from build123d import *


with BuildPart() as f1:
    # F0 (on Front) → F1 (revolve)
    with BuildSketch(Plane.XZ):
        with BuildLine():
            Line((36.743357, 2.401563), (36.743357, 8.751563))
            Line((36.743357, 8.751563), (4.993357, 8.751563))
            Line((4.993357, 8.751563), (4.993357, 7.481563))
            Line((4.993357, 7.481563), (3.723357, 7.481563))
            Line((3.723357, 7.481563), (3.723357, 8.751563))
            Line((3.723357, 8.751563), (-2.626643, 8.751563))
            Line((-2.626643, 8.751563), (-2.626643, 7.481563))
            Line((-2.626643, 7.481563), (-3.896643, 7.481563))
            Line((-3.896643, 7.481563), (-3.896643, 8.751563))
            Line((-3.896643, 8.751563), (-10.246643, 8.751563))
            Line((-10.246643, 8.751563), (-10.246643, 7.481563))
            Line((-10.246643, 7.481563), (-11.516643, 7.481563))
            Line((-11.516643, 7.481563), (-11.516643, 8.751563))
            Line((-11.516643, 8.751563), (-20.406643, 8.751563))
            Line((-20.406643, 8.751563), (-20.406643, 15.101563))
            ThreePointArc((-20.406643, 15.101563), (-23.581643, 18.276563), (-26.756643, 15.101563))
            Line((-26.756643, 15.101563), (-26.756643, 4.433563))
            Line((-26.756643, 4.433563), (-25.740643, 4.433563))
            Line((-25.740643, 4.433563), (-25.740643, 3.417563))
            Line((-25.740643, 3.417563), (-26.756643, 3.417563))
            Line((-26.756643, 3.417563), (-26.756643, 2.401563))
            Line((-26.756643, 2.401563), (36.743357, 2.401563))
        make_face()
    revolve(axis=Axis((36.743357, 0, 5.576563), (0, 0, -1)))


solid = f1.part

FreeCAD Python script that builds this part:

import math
import FreeCAD as App
import Part
import Sketcher

V = App.Vector
Q = App.Units.Quantity

doc = App.newDocument("Part")
body = doc.addObject("PartDesign::Body", "Body")

# Sketch on XZ plane
sketch1 = doc.addObject("Sketcher::SketchObject", "Sketch")
body.addObject(sketch1)
sketch1.AttachmentSupport = (doc.XZ_Plane, [""])
sketch1.MapMode = "FlatFace"
sketch1.addGeometry(Part.LineSegment(V(36.7, 2.4, 0), V(36.7, 8.8, 0)), False)
sketch1.addGeometry(Part.LineSegment(V(36.7, 8.8, 0), V(5, 8.8, 0)), False)
sketch1.addGeometry(Part.LineSegment(V(5, 8.8, 0), V(5, 7.5, 0)), False)
sketch1.addGeometry(Part.LineSegment(V(5, 7.5, 0), V(3.7, 7.5, 0)), False)
sketch1.addGeometry(Part.LineSegment(V(3.7, 7.5, 0), V(3.7, 8.8, 0)), False)
sketch1.addGeometry(Part.LineSegment(V(3.7, 8.8, 0), V(-2.6, 8.8, 0)), False)
sketch1.addGeometry(Part.LineSegment(V(-2.6, 8.8, 0), V(-2.6, 7.5, 0)), False)
sketch1.addGeometry(Part.LineSegment(V(-2.6, 7.5, 0), V(-3.9, 7.5, 0)), False)
sketch1.addGeometry(Part.LineSegment(V(-3.9, 7.5, 0), V(-3.9, 8.8, 0)), False)
sketch1.addGeometry(Part.LineSegment(V(-3.9, 8.8, 0), V(-10.2, 8.8, 0)), False)
sketch1.addGeometry(Part.LineSegment(V(-10.2, 8.8, 0), V(-10.2, 7.5, 0)), False)
sketch1.addGeometry(Part.LineSegment(V(-10.2, 7.5, 0), V(-11.5, 7.5, 0)), False)
sketch1.addGeometry(Part.LineSegment(V(-11.5, 7.5, 0), V(-11.5, 8.8, 0)), False)
sketch1.addGeometry(Part.LineSegment(V(-11.5, 8.8, 0), V(-20.4, 8.8, 0)), False)
sketch1.addGeometry(Part.LineSegment(V(-20.4, 8.8, 0), V(-20.4, 15.1, 0)), False)
sketch1.addGeometry(Part.ArcOfCircle(Part.Circle(V(-23.6, 15.1, 0), V(0, 0, 1), 3.2), math.radians(0), math.radians(180)), False)
sketch1.addGeometry(Part.LineSegment(V(-26.8, 15.1, 0), V(-26.8, 4.4, 0)), False)
sketch1.addGeometry(Part.LineSegment(V(-26.8, 4.4, 0), V(-25.7, 4.4, 0)), False)
sketch1.addGeometry(Part.LineSegment(V(-25.7, 4.4, 0), V(-25.7, 3.4, 0)), False)
sketch1.addGeometry(Part.LineSegment(V(-25.7, 3.4, 0), V(-26.8, 3.4, 0)), False)
sketch1.addGeometry(Part.LineSegment(V(-26.8, 3.4, 0), V(-26.8, 2.4, 0)), False)
sketch1.addGeometry(Part.LineSegment(V(-26.8, 2.4, 0), V(36.7, 2.4, 0)), False)
sketch1.addGeometry(Part.LineSegment(V(36.7, 15.1, 0), V(36.7, 2.4, 0)), True)  # axis
sketch1.addConstraint(Sketcher.Constraint("Coincident", 0, 2, 1, 1))
sketch1.addConstraint(Sketcher.Constraint("Coincident", 1, 2, 2, 1))
sketch1.addConstraint(Sketcher.Constraint("Coincident", 2, 2, 3, 1))
sketch1.addConstraint(Sketcher.Constraint("Coincident", 3, 2, 4, 1))
sketch1.addConstraint(Sketcher.Constraint("Coincident", 4, 2, 5, 1))
sketch1.addConstraint(Sketcher.Constraint("Coincident", 5, 2, 6, 1))
sketch1.addConstraint(Sketcher.Constraint("Coincident", 6, 2, 7, 1))
sketch1.addConstraint(Sketcher.Constraint("Coincident", 7, 2, 8, 1))
sketch1.addConstraint(Sketcher.Constraint("Coincident", 8, 2, 9, 1))
sketch1.addConstraint(Sketcher.Constraint("Coincident", 9, 2, 10, 1))
sketch1.addConstraint(Sketcher.Constraint("Coincident", 10, 2, 11, 1))
sketch1.addConstraint(Sketcher.Constraint("Coincident", 11, 2, 12, 1))
sketch1.addConstraint(Sketcher.Constraint("Coincident", 12, 2, 13, 1))
sketch1.addConstraint(Sketcher.Constraint("Coincident", 13, 2, 14, 1))
sketch1.addConstraint(Sketcher.Constraint("Tangent", 14, 2, 15, 1))
sketch1.addConstraint(Sketcher.Constraint("Tangent", 15, 2, 16, 1))
sketch1.addConstraint(Sketcher.Constraint("Coincident", 16, 2, 17, 1))
sketch1.addConstraint(Sketcher.Constraint("Coincident", 17, 2, 18, 1))
sketch1.addConstraint(Sketcher.Constraint("Coincident", 18, 2, 19, 1))
sketch1.addConstraint(Sketcher.Constraint("Coincident", 19, 2, 20, 1))
sketch1.addConstraint(Sketcher.Constraint("Coincident", 20, 2, 21, 1))
sketch1.addConstraint(Sketcher.Constraint("Coincident", 21, 2, 0, 1))
sketch1.addConstraint(Sketcher.Constraint("Vertical", 0))
sketch1.addConstraint(Sketcher.Constraint("Horizontal", 1))
sketch1.addConstraint(Sketcher.Constraint("Vertical", 2))
sketch1.addConstraint(Sketcher.Constraint("Horizontal", 3))
sketch1.addConstraint(Sketcher.Constraint("Vertical", 4))
sketch1.addConstraint(Sketcher.Constraint("Horizontal", 5))
sketch1.addConstraint(Sketcher.Constraint("Vertical", 6))
sketch1.addConstraint(Sketcher.Constraint("Horizontal", 7))
sketch1.addConstraint(Sketcher.Constraint("Vertical", 8))
sketch1.addConstraint(Sketcher.Constraint("Horizontal", 9))
sketch1.addConstraint(Sketcher.Constraint("Vertical", 10))
sketch1.addConstraint(Sketcher.Constraint("Horizontal", 11))
sketch1.addConstraint(Sketcher.Constraint("Vertical", 12))
sketch1.addConstraint(Sketcher.Constraint("Horizontal", 13))
sketch1.addConstraint(Sketcher.Constraint("Vertical", 14))
sketch1.addConstraint(Sketcher.Constraint("Vertical", 16))
sketch1.addConstraint(Sketcher.Constraint("Horizontal", 17))
sketch1.addConstraint(Sketcher.Constraint("Vertical", 18))
sketch1.addConstraint(Sketcher.Constraint("Horizontal", 19))
sketch1.addConstraint(Sketcher.Constraint("Vertical", 20))
sketch1.addConstraint(Sketcher.Constraint("Horizontal", 21))
sketch1.addConstraint(Sketcher.Constraint("Vertical", 22))
sketch1.addConstraint(Sketcher.Constraint("Coincident", 22, 2, 21, 2))
sketch1.addConstraint(Sketcher.Constraint("Horizontal", 1, 2, 4, 2))
sketch1.addConstraint(Sketcher.Constraint("Horizontal", 3, 2, 6, 2))
sketch1.addConstraint(Sketcher.Constraint("Horizontal", 5, 2, 8, 2))
sketch1.addConstraint(Sketcher.Constraint("Horizontal", 7, 2, 10, 2))
sketch1.addConstraint(Sketcher.Constraint("Horizontal", 9, 2, 12, 2))
sketch1.addConstraint(Sketcher.Constraint("Horizontal", 15, 2, 22, 1))
sketch1.addConstraint(Sketcher.Constraint("Vertical", 16, 2, 19, 2))
sketch1.addConstraint(Sketcher.Constraint("Equal", 3, 7))
sketch1.addConstraint(Sketcher.Constraint("Equal", 5, 9))
sketch1.addConstraint(Sketcher.Constraint("Equal", 7, 11))
sketch1.addConstraint(Sketcher.Constraint("Equal", 9, 0))
sketch1.addConstraint(Sketcher.Constraint("Equal", 11, 2))
sketch1.addConstraint(Sketcher.Constraint("Equal", 0, 14))
sketch1.addConstraint(Sketcher.Constraint("Equal", 19, 18))
sketch1.addConstraint(Sketcher.Constraint("Equal", 18, 20))
sketch1.addConstraint(Sketcher.Constraint("DistanceX", 21, 1, 21, 2, Q("2.5 in")))
sketch1.addConstraint(Sketcher.Constraint("DistanceY", 22, 2, 22, 1, Q("0.5 in")))
sketch1.addConstraint(Sketcher.Constraint("Radius", 15, Q("0.125 in")))
sketch1.addConstraint(Sketcher.Constraint("DistanceX", 1, 2, 1, 1, Q("1.25 in")))
sketch1.addConstraint(Sketcher.Constraint("DistanceX", 3, 2, 3, 1, Q("0.05 in")))
sketch1.addConstraint(Sketcher.Constraint("DistanceX", 17, 1, 17, 2, Q("0.04 in")))
sketch1.addConstraint(Sketcher.Constraint("DistanceX", 15, 3, -1, 1, 23.581643))
sketch1.addConstraint(Sketcher.Constraint("DistanceY", -1, 1, 15, 3, 15.101563))
revolution = doc.addObject("PartDesign::Revolution", "Revolution")
body.addObject(revolution)
revolution.Profile = sketch1
revolution.ReferenceAxis = (sketch1, ["Axis0"])
revolution.Angle = 360

doc.recompute()
